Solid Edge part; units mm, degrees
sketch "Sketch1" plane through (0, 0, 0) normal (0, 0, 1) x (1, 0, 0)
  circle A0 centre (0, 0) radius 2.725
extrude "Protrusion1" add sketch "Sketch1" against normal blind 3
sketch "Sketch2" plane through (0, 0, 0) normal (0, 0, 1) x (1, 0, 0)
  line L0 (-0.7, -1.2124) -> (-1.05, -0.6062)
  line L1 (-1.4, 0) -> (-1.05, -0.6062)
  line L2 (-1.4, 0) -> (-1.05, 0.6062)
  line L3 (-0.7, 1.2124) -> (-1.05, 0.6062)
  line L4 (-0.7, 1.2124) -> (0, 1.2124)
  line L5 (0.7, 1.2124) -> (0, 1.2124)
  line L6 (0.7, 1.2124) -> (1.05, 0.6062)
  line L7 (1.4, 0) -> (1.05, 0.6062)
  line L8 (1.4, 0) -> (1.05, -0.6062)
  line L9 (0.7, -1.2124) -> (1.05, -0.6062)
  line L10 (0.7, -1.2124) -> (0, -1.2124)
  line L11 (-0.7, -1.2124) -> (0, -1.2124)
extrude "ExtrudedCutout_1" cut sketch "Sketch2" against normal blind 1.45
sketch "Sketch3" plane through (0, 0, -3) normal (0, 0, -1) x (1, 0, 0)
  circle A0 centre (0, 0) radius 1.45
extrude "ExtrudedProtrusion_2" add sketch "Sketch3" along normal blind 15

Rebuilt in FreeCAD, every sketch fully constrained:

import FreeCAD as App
import Part
import Sketcher
from FreeCAD import Vector
Q = App.Units.Quantity


def add_polygon(sketch, points):
    """Adds a closed chain of lines whose ends are joined by coincident constraints."""
    first, n = sketch.GeometryCount, len(points)
    for a, b in zip(points, points[1:] + points[:1]):
        sketch.addGeometry(Part.LineSegment(App.Vector(*a, 0), App.Vector(*b, 0)), False)
    for i in range(n):
        sketch.addConstraint(Sketcher.Constraint("Coincident", first + i, 2, first + (i + 1) % n, 1))

doc = App.newDocument("Part")
body = doc.addObject("PartDesign::Body", "Body")

sketch1 = doc.addObject("Sketcher::SketchObject", "Sketch")
body.addObject(sketch1)
sketch1.AttachmentSupport = (doc.XY_Plane, [""])
sketch1.MapMode = "FlatFace"
sketch1.addGeometry(Part.Circle(Vector(0, 0, 0), Vector(0, 0, 1), 2.7), False)
sketch1.addConstraint(Sketcher.Constraint("Coincident", 0, 3, -1, 1))
sketch1.addConstraint(Sketcher.Constraint("Diameter", 0, Q("5.45 mm")))
pad1 = doc.addObject("PartDesign::Pad", "Pad")
body.addObject(pad1)
pad1.Profile = sketch1
pad1.Length = 3
pad1.Reversed = True

sketch2 = doc.addObject("Sketcher::SketchObject", "Sketch001")
body.addObject(sketch2)
sketch2.AttachmentSupport = (doc.XY_Plane, [""])
sketch2.MapMode = "FlatFace"
add_polygon(sketch2, [(-1.4, 0), (-0.7, -1.2), (0.7, -1.2), (1.4, 0), (0.7, 1.2), (-0.7, 1.2)])
sketch2.addConstraint(Sketcher.Constraint("Horizontal", 1))
sketch2.addConstraint(Sketcher.Constraint("Horizontal", 4))
sketch2.addConstraint(Sketcher.Constraint("Symmetric", 0, 2, 3, 2, -1, 1))
sketch2.addConstraint(Sketcher.Constraint("Symmetric", 2, 2, 5, 2, -1, 1))
sketch2.addConstraint(Sketcher.Constraint("PointOnObject", 2, 2, -1))
sketch2.addConstraint(Sketcher.Constraint("Parallel", 2, 5))
sketch2.addConstraint(Sketcher.Constraint("Vertical", 1, 2, 3, 2))
sketch2.addConstraint(Sketcher.Constraint("Angle", 0, Q("-59.9993 deg")))
sketch2.addConstraint(Sketcher.Constraint("DistanceX", 1, 1, 1, 2, Q("1.4 mm")))
sketch2.addConstraint(Sketcher.Constraint("Distance", 0, Q("1.4 mm")))
pocket1 = doc.addObject("PartDesign::Pocket", "Pocket")
body.addObject(pocket1)
pocket1.Profile = sketch2
pocket1.Length = 1.45

sketch3 = doc.addObject("Sketcher::SketchObject", "Sketch002")
body.addObject(sketch3)
sketch3.AttachmentSupport = (doc.XY_Plane, [""])
sketch3.MapMode = "FlatFace"
sketch3.AttachmentOffset = App.Placement(Vector(0, 0, -3), App.Rotation())
sketch3.addGeometry(Part.Circle(Vector(0, 0, 0), Vector(0, 0, 1), 1.4), False)
sketch3.addConstraint(Sketcher.Constraint("Coincident", 0, 3, -1, 1))
sketch3.addConstraint(Sketcher.Constraint("Diameter", 0, Q("2.9 mm")))
pad2 = doc.addObject("PartDesign::Pad", "Pad001")
body.addObject(pad2)
pad2.Profile = sketch3
pad2.Length = 15
pad2.Reversed = True

doc.recompute()
